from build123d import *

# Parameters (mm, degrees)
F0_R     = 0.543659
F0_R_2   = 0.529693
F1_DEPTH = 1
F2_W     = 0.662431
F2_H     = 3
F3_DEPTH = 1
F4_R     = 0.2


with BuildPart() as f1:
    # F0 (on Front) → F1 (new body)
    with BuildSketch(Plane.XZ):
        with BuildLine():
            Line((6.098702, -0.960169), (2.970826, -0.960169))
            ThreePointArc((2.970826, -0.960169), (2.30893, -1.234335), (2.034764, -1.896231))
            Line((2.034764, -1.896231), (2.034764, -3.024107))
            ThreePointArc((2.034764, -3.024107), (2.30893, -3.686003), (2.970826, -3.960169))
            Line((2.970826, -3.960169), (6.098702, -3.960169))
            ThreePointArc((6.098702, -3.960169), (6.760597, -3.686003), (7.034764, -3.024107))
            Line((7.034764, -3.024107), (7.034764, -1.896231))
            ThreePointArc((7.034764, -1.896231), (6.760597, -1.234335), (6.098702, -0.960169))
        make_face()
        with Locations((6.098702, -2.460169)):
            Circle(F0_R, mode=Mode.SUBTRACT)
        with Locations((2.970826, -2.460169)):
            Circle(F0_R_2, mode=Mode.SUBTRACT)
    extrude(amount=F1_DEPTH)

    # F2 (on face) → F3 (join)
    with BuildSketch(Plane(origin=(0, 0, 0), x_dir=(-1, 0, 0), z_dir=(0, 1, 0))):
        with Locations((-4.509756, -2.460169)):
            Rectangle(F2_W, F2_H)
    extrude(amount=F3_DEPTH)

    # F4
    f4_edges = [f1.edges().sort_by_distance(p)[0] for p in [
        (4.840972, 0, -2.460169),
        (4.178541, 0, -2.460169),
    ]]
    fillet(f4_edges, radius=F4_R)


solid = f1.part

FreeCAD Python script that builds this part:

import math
import FreeCAD as App
import Part
import Sketcher
Q = App.Units.Quantity


def edges_at(feature, points):
    """Names of the edges that pass closest to the given points."""
    edges = feature.Shape.Edges
    near = lambda p: min(range(len(edges)), key=lambda i: edges[i].distToShape(Part.Vertex(*p))[0])
    return sorted({f"Edge{near(p) + 1}" for p in points})


def add_polygon(sketch, points):
    """Adds a closed chain of lines whose ends are joined by coincident constraints."""
    first, n = sketch.GeometryCount, len(points)
    for a, b in zip(points, points[1:] + points[:1]):
        sketch.addGeometry(Part.LineSegment(App.Vector(*a, 0), App.Vector(*b, 0)), False)
    for i in range(n):
        sketch.addConstraint(Sketcher.Constraint("Coincident", first + i, 2, first + (i + 1) % n, 1))

doc = App.newDocument("Part")
params = doc.addObject("Spreadsheet::Sheet", "Params")
for row, (alias, value) in enumerate([
    ("pad1_length", "1 mm"),
    ("sketch2_height", "3 mm"),
    ("pad2_length", "1 mm"),
    ("fillet_radius", "0.2 mm"),
], start=1):
    params.set(f"A{row}", alias)
    params.set(f"B{row}", "=" + value)
    params.setAlias(f"B{row}", alias)

body = doc.addObject("PartDesign::Body", "Body")

# Sketch on XZ plane
sketch1 = body.newObject("Sketcher::SketchObject", "Sketch")
sketch1.AttachmentSupport = (doc.getObject("XZ_Plane"), [""])
sketch1.MapMode = "FlatFace"
sketch1.addGeometry(Part.LineSegment(App.Vector(6.1, -1, 0), App.Vector(3, -1, 0)), False)
sketch1.addGeometry(Part.ArcOfCircle(Part.Circle(App.Vector(3, -1.9, 0), App.Vector(0, 0, 1), 0.9), math.radians(90), math.radians(180)), False)
sketch1.addGeometry(Part.LineSegment(App.Vector(2, -1.9, 0), App.Vector(2, -3, 0)), False)
sketch1.addGeometry(Part.ArcOfCircle(Part.Circle(App.Vector(3, -3, 0), App.Vector(0, 0, 1), 0.9), math.radians(180), math.radians(270)), False)
sketch1.addGeometry(Part.LineSegment(App.Vector(3, -4, 0), App.Vector(6.1, -4, 0)), False)
sketch1.addGeometry(Part.ArcOfCircle(Part.Circle(App.Vector(6.1, -3, 0), App.Vector(0, 0, 1), 0.9), math.radians(-90), math.radians(0)), False)
sketch1.addGeometry(Part.LineSegment(App.Vector(7, -3, 0), App.Vector(7, -1.9, 0)), False)
sketch1.addGeometry(Part.ArcOfCircle(Part.Circle(App.Vector(6.1, -1.9, 0), App.Vector(0, 0, 1), 0.9), math.radians(0), math.radians(90)), False)
sketch1.addGeometry(Part.Circle(App.Vector(3, -2.5, 0), App.Vector(0, 0, 1), 0.5), False)
sketch1.addGeometry(Part.Circle(App.Vector(6.1, -2.5, 0), App.Vector(0, 0, 1), 0.5), False)
sketch1.addConstraint(Sketcher.Constraint("Tangent", 0, 2, 1, 1))
sketch1.addConstraint(Sketcher.Constraint("Tangent", 1, 2, 2, 1))
sketch1.addConstraint(Sketcher.Constraint("Tangent", 2, 2, 3, 1))
sketch1.addConstraint(Sketcher.Constraint("Tangent", 3, 2, 4, 1))
sketch1.addConstraint(Sketcher.Constraint("Tangent", 4, 2, 5, 1))
sketch1.addConstraint(Sketcher.Constraint("Tangent", 5, 2, 6, 1))
sketch1.addConstraint(Sketcher.Constraint("Tangent", 6, 2, 7, 1))
sketch1.addConstraint(Sketcher.Constraint("Tangent", 7, 2, 0, 1))
sketch1.addConstraint(Sketcher.Constraint("Horizontal", 0))
sketch1.addConstraint(Sketcher.Constraint("Vertical", 2))
sketch1.addConstraint(Sketcher.Constraint("Horizontal", 4))
sketch1.addConstraint(Sketcher.Constraint("Vertical", 6))
sketch1.addConstraint(Sketcher.Constraint("Equal", 1, 3))
sketch1.addConstraint(Sketcher.Constraint("Equal", 3, 5))
sketch1.addConstraint(Sketcher.Constraint("Equal", 5, 7))
sketch1.addConstraint(Sketcher.Constraint("Horizontal", 8, 3, 9, 3))
sketch1.addConstraint(Sketcher.Constraint("Vertical", 3, 3, 8, 3))
sketch1.addConstraint(Sketcher.Constraint("Vertical", 7, 3, 9, 3))
sketch1.addConstraint(Sketcher.Constraint("DistanceY", 8, 3, 0, 2, Q("1.5 mm")))
sketch1.addConstraint(Sketcher.Constraint("DistanceY", 3, 2, 8, 3, Q("1.5 mm")))
sketch1.addConstraint(Sketcher.Constraint("Radius", 1, Q("0.936061 mm")))
sketch1.addConstraint(Sketcher.Constraint("Diameter", 8, Q("1.059386 mm")))
sketch1.addConstraint(Sketcher.Constraint("Diameter", 9, Q("1.087318 mm")))
sketch1.addConstraint(Sketcher.Constraint("DistanceX", -1, 1, 5, 3, Q("6.098701 mm")))
sketch1.addConstraint(Sketcher.Constraint("DistanceX", 0, 2, 0, 1, Q("3.127876 mm")))
sketch1.addConstraint(Sketcher.Constraint("DistanceY", 1, 3, -1, 1, Q("1.89623 mm")))
pad1 = body.newObject("PartDesign::Pad", "Pad")
pad1.Profile = sketch1
pad1.setExpression("Length", "Params.pad1_length")

# Sketch on XZ plane
sketch2 = body.newObject("Sketcher::SketchObject", "Sketch001")
sketch2.AttachmentSupport = (doc.getObject("XZ_Plane"), [""])
sketch2.MapMode = "FlatFace"
add_polygon(sketch2, [(4.8, -1), (4.8, -4), (4.2, -4), (4.2, -1)])  # lines 0-3
sketch2.addConstraint(Sketcher.Constraint("Vertical", 0))
sketch2.addConstraint(Sketcher.Constraint("Horizontal", 1))
sketch2.addConstraint(Sketcher.Constraint("Vertical", 2))
sketch2.addConstraint(Sketcher.Constraint("Horizontal", 3))
sketch2.addConstraint(Sketcher.Constraint("DistanceY", 0, 2, 0, 1, Q("3 mm")))
sketch2.addConstraint(Sketcher.Constraint("DistanceX", 1, 2, 1, 1, Q("0.662431 mm")))
sketch2.addConstraint(Sketcher.Constraint("DistanceX", -1, 1, 0, 2, Q("4.840972 mm")))
sketch2.addConstraint(Sketcher.Constraint("DistanceY", 0, 2, -1, 1, Q("3.960169 mm")))
sketch2.setExpression("Constraints[8]", "Params.sketch2_height")
pad2 = body.newObject("PartDesign::Pad", "Pad001")
pad2.Profile = sketch2
pad2.setExpression("Length", "Params.pad2_length")
pad2.Reversed = True
doc.recompute()

fillet = body.newObject("PartDesign::Fillet", "Fillet")
fillet.Base = (pad2, edges_at(pad2, [(4.841, 0, -2.46), (4.179, 0, -2.46)]))
fillet.setExpression("Radius", "Params.fillet_radius")

doc.recompute()
